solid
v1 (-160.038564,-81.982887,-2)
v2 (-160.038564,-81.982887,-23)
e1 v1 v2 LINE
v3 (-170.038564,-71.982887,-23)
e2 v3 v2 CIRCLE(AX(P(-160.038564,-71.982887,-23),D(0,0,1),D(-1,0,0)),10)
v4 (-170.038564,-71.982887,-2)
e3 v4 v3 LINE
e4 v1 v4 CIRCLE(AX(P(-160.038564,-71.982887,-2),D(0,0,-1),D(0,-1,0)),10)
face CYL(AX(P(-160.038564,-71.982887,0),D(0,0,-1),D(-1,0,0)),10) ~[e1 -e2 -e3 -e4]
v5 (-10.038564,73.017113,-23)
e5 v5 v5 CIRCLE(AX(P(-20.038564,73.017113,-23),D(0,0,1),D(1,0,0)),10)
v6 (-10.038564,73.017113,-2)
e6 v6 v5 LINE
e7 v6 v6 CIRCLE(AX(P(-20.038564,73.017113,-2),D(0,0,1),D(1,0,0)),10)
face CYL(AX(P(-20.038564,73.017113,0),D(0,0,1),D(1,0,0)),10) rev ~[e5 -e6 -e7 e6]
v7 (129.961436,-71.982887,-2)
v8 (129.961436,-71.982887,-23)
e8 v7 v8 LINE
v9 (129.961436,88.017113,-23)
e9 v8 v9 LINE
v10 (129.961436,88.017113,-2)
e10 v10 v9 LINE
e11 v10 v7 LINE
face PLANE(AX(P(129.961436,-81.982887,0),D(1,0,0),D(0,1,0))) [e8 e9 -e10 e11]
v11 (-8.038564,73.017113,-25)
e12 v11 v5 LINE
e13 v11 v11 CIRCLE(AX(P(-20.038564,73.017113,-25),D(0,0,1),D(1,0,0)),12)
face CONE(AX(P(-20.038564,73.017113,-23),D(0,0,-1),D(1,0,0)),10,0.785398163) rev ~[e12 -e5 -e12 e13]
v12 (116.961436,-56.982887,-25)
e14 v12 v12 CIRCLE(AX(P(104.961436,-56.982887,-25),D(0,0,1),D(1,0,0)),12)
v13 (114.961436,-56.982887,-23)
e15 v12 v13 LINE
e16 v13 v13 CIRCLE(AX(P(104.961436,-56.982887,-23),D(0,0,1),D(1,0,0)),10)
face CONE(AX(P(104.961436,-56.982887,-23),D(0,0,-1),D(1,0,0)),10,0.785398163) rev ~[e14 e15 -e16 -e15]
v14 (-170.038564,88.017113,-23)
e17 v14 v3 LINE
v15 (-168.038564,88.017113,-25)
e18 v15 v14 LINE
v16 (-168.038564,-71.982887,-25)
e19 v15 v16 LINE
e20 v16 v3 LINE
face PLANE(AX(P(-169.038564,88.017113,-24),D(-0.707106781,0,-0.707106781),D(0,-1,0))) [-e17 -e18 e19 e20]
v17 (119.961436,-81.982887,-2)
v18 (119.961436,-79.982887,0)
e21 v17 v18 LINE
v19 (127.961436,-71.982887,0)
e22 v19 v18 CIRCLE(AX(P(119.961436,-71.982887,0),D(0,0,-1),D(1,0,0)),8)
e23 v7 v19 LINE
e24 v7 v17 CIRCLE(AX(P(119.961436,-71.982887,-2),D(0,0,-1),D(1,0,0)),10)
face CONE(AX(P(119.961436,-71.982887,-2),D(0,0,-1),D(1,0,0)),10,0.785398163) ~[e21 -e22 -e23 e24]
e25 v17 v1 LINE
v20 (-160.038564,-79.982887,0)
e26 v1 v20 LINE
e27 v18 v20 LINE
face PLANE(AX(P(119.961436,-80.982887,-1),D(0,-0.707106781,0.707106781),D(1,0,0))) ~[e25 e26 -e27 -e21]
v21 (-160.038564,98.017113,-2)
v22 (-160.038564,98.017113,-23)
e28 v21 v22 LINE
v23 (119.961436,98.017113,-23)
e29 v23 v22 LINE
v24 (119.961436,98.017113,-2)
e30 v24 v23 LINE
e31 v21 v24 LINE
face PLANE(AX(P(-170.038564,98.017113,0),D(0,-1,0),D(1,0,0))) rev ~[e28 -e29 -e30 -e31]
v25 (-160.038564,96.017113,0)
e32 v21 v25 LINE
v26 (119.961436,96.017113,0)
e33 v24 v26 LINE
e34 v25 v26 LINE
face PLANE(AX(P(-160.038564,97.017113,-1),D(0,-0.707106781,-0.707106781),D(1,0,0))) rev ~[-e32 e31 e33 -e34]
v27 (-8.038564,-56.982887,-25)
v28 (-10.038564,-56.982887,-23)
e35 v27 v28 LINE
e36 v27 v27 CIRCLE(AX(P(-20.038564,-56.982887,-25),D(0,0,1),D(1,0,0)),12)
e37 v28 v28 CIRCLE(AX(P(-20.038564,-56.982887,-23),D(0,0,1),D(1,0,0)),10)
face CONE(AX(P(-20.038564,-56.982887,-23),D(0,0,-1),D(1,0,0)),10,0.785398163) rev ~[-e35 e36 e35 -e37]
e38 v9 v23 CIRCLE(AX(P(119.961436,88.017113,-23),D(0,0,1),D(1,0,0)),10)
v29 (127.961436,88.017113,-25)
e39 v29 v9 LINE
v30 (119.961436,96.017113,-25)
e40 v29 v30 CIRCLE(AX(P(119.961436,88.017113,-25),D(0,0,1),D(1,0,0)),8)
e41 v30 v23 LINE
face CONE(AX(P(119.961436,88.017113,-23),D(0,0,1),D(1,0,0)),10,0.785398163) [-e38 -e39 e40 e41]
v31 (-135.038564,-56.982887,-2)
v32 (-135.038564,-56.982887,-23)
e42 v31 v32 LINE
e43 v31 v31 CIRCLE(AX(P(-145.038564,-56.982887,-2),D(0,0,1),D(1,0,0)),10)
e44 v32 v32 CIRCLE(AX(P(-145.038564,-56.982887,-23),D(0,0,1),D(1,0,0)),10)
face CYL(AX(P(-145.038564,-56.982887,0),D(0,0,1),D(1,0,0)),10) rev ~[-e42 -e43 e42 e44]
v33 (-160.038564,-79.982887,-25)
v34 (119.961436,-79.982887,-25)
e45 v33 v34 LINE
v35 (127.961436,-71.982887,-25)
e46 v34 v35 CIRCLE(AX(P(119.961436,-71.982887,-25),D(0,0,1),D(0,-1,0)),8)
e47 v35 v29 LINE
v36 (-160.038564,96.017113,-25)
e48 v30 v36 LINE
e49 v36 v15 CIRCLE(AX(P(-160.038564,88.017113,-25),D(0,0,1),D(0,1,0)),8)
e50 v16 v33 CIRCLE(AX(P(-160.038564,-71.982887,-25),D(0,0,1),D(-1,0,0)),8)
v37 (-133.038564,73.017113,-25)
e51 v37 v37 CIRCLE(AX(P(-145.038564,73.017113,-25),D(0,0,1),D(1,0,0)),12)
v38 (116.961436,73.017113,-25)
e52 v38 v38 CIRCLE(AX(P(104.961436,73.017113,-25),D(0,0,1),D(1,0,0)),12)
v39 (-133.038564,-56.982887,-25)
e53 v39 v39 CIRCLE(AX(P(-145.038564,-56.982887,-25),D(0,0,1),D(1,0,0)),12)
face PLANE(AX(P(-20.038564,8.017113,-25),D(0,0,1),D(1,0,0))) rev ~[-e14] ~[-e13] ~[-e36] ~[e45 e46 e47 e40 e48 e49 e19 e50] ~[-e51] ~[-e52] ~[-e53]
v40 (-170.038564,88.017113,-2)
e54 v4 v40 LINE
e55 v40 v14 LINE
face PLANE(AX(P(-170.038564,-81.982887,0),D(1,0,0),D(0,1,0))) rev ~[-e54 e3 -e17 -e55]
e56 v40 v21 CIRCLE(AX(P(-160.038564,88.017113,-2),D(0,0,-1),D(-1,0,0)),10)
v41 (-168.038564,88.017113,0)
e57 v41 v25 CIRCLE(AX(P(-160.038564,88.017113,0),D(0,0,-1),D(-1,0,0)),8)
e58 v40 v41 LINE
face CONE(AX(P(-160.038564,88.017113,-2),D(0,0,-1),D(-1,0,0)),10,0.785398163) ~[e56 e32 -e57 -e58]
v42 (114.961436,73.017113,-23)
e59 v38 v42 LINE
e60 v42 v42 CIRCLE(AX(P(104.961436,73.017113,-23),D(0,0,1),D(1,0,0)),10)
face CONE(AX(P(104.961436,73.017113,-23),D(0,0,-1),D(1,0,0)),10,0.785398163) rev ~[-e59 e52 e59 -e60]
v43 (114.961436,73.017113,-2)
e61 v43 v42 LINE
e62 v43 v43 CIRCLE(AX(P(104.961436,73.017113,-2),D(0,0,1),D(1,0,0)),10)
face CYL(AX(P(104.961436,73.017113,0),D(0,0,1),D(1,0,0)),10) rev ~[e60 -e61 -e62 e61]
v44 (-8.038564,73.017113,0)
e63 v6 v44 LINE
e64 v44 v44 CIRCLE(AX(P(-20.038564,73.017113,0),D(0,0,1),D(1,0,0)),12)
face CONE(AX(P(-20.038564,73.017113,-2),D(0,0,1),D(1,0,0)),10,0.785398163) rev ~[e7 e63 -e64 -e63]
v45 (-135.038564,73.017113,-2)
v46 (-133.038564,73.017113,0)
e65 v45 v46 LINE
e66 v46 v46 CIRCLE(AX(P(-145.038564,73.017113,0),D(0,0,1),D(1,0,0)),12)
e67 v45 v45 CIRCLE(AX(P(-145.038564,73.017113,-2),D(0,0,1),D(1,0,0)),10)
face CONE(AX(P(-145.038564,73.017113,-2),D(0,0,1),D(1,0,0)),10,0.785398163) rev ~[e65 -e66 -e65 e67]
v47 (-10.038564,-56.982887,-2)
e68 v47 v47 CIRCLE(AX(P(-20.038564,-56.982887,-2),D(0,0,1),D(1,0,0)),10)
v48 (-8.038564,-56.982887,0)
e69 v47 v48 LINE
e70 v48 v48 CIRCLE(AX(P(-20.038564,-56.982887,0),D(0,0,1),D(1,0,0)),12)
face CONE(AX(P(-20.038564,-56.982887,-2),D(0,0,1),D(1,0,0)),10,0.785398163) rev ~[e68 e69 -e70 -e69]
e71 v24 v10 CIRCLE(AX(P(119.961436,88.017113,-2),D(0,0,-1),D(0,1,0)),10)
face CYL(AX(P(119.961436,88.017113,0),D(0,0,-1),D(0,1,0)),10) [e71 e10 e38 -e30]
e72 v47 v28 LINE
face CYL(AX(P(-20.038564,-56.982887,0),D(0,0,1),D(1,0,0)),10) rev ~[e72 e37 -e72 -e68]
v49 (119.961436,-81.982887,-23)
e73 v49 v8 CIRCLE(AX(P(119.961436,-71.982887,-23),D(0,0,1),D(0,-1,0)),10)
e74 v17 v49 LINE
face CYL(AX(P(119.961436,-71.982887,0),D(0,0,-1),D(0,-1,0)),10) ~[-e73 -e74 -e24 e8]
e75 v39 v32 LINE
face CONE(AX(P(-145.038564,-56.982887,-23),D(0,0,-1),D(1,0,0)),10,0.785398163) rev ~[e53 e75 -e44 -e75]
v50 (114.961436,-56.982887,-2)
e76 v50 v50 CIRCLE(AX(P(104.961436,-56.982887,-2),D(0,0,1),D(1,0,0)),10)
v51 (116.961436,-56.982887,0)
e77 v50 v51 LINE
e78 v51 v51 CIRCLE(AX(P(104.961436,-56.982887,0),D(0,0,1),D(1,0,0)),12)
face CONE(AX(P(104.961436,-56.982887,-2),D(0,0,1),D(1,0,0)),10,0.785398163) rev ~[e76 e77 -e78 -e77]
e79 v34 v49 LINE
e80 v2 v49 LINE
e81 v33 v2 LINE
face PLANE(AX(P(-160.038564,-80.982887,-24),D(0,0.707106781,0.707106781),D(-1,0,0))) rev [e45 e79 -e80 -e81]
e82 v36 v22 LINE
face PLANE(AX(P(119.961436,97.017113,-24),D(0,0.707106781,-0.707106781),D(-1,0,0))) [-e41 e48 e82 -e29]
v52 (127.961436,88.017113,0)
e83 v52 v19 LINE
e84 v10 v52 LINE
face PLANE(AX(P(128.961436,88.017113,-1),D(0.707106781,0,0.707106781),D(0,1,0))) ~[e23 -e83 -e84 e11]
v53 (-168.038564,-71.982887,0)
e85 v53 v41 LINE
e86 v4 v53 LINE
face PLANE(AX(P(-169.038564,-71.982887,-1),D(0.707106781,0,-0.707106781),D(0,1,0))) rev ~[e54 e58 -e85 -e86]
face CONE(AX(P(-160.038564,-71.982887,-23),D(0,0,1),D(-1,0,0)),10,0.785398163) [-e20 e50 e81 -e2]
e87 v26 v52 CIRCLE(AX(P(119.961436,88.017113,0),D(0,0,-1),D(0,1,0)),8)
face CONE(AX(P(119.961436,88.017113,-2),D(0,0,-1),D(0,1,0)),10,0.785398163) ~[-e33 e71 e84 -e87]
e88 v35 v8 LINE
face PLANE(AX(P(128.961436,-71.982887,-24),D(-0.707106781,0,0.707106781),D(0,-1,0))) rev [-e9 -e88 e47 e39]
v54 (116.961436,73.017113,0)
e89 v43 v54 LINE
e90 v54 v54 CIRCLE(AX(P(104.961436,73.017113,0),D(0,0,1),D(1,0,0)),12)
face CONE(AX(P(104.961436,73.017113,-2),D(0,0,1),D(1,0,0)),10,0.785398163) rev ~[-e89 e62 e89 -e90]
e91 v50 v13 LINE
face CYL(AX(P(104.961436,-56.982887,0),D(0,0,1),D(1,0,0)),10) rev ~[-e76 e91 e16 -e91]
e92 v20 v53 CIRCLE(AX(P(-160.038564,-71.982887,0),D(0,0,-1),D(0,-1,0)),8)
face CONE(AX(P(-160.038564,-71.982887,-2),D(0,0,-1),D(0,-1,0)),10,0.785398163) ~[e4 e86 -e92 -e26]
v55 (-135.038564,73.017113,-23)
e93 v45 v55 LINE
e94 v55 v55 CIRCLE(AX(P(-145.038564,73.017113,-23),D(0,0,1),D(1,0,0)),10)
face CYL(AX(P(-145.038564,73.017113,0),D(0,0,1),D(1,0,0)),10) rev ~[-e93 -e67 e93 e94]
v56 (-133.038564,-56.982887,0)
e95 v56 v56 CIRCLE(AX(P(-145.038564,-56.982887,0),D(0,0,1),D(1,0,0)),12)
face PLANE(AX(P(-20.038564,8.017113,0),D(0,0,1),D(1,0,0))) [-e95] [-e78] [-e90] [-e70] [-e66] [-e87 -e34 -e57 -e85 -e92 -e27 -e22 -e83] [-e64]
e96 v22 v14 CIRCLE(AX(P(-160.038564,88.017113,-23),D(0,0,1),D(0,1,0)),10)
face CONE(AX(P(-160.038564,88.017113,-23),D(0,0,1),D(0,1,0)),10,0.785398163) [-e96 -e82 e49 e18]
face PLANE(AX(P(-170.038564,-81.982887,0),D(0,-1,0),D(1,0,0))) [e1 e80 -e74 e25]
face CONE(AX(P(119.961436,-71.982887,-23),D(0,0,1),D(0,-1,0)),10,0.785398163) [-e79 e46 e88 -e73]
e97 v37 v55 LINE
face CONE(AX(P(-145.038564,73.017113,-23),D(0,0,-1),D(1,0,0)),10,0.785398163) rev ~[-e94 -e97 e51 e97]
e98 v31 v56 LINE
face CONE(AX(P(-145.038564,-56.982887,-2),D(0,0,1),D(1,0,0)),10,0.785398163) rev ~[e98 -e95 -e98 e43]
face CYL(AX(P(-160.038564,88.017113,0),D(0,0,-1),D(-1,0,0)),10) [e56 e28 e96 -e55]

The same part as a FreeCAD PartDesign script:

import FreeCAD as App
import Part
import Sketcher

V = App.Vector
Q = App.Units.Quantity


def edges_at(feature, points):
    """Names of the edges that pass closest to the given points."""
    edges = feature.Shape.Edges
    near = lambda p: min(range(len(edges)), key=lambda i: edges[i].distToShape(Part.Vertex(*p))[0])
    return sorted({f"Edge{near(p) + 1}" for p in points})


def add_polygon(sketch, points):
    """Adds a closed chain of lines whose ends are joined by coincident constraints."""
    first, n = sketch.GeometryCount, len(points)
    for a, b in zip(points, points[1:] + points[:1]):
        sketch.addGeometry(Part.LineSegment(App.Vector(*a, 0), App.Vector(*b, 0)), False)
    for i in range(n):
        sketch.addConstraint(Sketcher.Constraint("Coincident", first + i, 2, first + (i + 1) % n, 1))

doc = App.newDocument("Part")
params = doc.addObject("Spreadsheet::Sheet", "Params")
for row, (alias, value) in enumerate([
    ("sketch1_diameter", "20 mm"),
    ("sketch1_width", "300 mm"),
    ("sketch1_height", "180 mm"),
    ("pad1_length", "25 mm"),
    ("chamfer_size", "2 mm"),
    ("chamfer_size2", "2 mm"),
    ("fillet_radius", "10 mm"),
    ("chamfer2_size", "2 mm"),
    ("chamfer2_size2", "2 mm"),
    ("chamfer3_size", "2 mm"),
    ("chamfer3_size2", "2 mm"),
    ("chamfer4_size", "2 mm"),
    ("chamfer4_size2", "2 mm"),
], start=1):
    params.set(f"A{row}", alias)
    params.set(f"B{row}", "=" + value)
    params.setAlias(f"B{row}", alias)

body = doc.addObject("PartDesign::Body", "Body")

# Sketch on XY plane
sketch1 = body.newObject("Sketcher::SketchObject", "Sketch")
sketch1.AttachmentSupport = (doc.getObject("XY_Plane"), [""])
sketch1.MapMode = "FlatFace"
add_polygon(sketch1, [(-170.038564, 98.017113), (-170.038564, -81.982887), (129.961436, -81.982887), (129.961436, 98.017113)])  # lines 0-3
sketch1.addGeometry(Part.Circle(V(-145.038564, -56.982887, 0), V(0, 0, 1), 10), False)  # 4
sketch1.addGeometry(Part.Circle(V(-20.038564, -56.982887, 0), V(0, 0, 1), 10), False)  # 5
sketch1.addGeometry(Part.Circle(V(104.961436, -56.982887, 0), V(0, 0, 1), 10), False)  # 6
sketch1.addGeometry(Part.Circle(V(-145.038564, 73.017113, 0), V(0, 0, 1), 10), False)  # 7
sketch1.addGeometry(Part.Circle(V(-20.038564, 73.017113, 0), V(0, 0, 1), 10), False)  # 8
sketch1.addGeometry(Part.Circle(V(104.961436, 73.017113, 0), V(0, 0, 1), 10), False)  # 9
sketch1.addConstraint(Sketcher.Constraint("Vertical", 0))
sketch1.addConstraint(Sketcher.Constraint("Horizontal", 1))
sketch1.addConstraint(Sketcher.Constraint("Vertical", 2))
sketch1.addConstraint(Sketcher.Constraint("Horizontal", 3))
sketch1.addConstraint(Sketcher.Constraint("Equal", 4, 5))
sketch1.addConstraint(Sketcher.Constraint("Equal", 5, 6))
sketch1.addConstraint(Sketcher.Constraint("Equal", 6, 7))
sketch1.addConstraint(Sketcher.Constraint("Equal", 7, 8))
sketch1.addConstraint(Sketcher.Constraint("Equal", 8, 9))
sketch1.addConstraint(Sketcher.Constraint("Horizontal", 4, 3, 5, 3))
sketch1.addConstraint(Sketcher.Constraint("Horizontal", 5, 3, 6, 3))
sketch1.addConstraint(Sketcher.Constraint("Horizontal", 7, 3, 8, 3))
sketch1.addConstraint(Sketcher.Constraint("Horizontal", 8, 3, 9, 3))
sketch1.addConstraint(Sketcher.Constraint("Vertical", 4, 3, 7, 3))
sketch1.addConstraint(Sketcher.Constraint("Vertical", 5, 3, 8, 3))
sketch1.addConstraint(Sketcher.Constraint("Vertical", 6, 3, 9, 3))
sketch1.addConstraint(Sketcher.Constraint("Diameter", 4, Q("20 mm")))
sketch1.addConstraint(Sketcher.Constraint("DistanceX", 1, 1, 1, 2, Q("300 mm")))
sketch1.addConstraint(Sketcher.Constraint("DistanceY", 0, 2, 0, 1, Q("180 mm")))
sketch1.addConstraint(Sketcher.Constraint("DistanceX", 4, 3, 5, 3, Q("125 mm")))
sketch1.addConstraint(Sketcher.Constraint("DistanceX", 5, 3, 6, 3, Q("125 mm")))
sketch1.addConstraint(Sketcher.Constraint("DistanceY", 4, 3, 7, 3, Q("130 mm")))
sketch1.addConstraint(Sketcher.Constraint("DistanceX", 0, 2, 4, 3, Q("25 mm")))
sketch1.addConstraint(Sketcher.Constraint("DistanceY", 0, 2, 4, 3, Q("25 mm")))
sketch1.addConstraint(Sketcher.Constraint("DistanceX", 4, 3, -1, 1, Q("145.038564 mm")))
sketch1.addConstraint(Sketcher.Constraint("DistanceY", 4, 3, -1, 1, Q("56.982887 mm")))
sketch1.setExpression("Constraints[20]", "Params.sketch1_diameter")
sketch1.setExpression("Constraints[21]", "Params.sketch1_width")
sketch1.setExpression("Constraints[22]", "Params.sketch1_height")
pad1 = body.newObject("PartDesign::Pad", "Pad")
pad1.Profile = sketch1
pad1.setExpression("Length", "Params.pad1_length")
pad1.Reversed = True
doc.recompute()

chamfer = body.newObject("PartDesign::Chamfer", "Chamfer")
chamfer.Base = (pad1, edges_at(pad1, [
    (-155.039, -56.983, 0),
    (-155.039, 73.017, 0),
    (-30.039, 73.017, 0),
    (-30.039, -56.983, 0),
    (94.961, -56.983, 0),
    (94.961, 73.017, 0),
]))
chamfer.ChamferType = "Two distances"
chamfer.setExpression("Size", "Params.chamfer_size")
chamfer.setExpression("Size2", "Params.chamfer_size2")
doc.recompute()

fillet = body.newObject("PartDesign::Fillet", "Fillet")
fillet.Base = (chamfer, edges_at(chamfer, [
    (129.961, -81.983, -12.5),
    (129.961, 98.017, -12.5),
    (-170.039, -81.983, -12.5),
    (-170.039, 98.017, -12.5),
]))
fillet.setExpression("Radius", "Params.fillet_radius")
doc.recompute()

chamfer2 = body.newObject("PartDesign::Chamfer", "Chamfer001")
chamfer2.Base = (fillet, edges_at(fillet, [
    (127.033, -79.054, -25),
    (-167.11, -79.054, -25),
    (-167.11, 95.088, -25),
    (127.033, 95.088, -25),
]))
chamfer2.ChamferType = "Two distances"
chamfer2.setExpression("Size", "Params.chamfer2_size")
chamfer2.setExpression("Size2", "Params.chamfer2_size2")
doc.recompute()

chamfer3 = body.newObject("PartDesign::Chamfer", "Chamfer002")
chamfer3.Base = (chamfer2, edges_at(chamfer2, [
    (-167.11, 95.088, 0),
    (-167.11, -79.054, 0),
    (127.033, 95.088, 0),
    (127.033, -79.054, 0),
]))
chamfer3.ChamferType = "Two distances"
chamfer3.setExpression("Size", "Params.chamfer3_size")
chamfer3.setExpression("Size2", "Params.chamfer3_size2")
doc.recompute()

chamfer4 = body.newObject("PartDesign::Chamfer", "Chamfer003")
chamfer4.Base = (chamfer3, edges_at(chamfer3, [
    (94.961, 73.017, -25),
    (-30.039, 73.017, -25),
    (94.961, -56.983, -25),
    (-30.039, -56.983, -25),
    (-155.039, -56.983, -25),
    (-155.039, 73.017, -25),
]))
chamfer4.ChamferType = "Two distances"
chamfer4.setExpression("Size", "Params.chamfer4_size")
chamfer4.setExpression("Size2", "Params.chamfer4_size2")

doc.recompute()
